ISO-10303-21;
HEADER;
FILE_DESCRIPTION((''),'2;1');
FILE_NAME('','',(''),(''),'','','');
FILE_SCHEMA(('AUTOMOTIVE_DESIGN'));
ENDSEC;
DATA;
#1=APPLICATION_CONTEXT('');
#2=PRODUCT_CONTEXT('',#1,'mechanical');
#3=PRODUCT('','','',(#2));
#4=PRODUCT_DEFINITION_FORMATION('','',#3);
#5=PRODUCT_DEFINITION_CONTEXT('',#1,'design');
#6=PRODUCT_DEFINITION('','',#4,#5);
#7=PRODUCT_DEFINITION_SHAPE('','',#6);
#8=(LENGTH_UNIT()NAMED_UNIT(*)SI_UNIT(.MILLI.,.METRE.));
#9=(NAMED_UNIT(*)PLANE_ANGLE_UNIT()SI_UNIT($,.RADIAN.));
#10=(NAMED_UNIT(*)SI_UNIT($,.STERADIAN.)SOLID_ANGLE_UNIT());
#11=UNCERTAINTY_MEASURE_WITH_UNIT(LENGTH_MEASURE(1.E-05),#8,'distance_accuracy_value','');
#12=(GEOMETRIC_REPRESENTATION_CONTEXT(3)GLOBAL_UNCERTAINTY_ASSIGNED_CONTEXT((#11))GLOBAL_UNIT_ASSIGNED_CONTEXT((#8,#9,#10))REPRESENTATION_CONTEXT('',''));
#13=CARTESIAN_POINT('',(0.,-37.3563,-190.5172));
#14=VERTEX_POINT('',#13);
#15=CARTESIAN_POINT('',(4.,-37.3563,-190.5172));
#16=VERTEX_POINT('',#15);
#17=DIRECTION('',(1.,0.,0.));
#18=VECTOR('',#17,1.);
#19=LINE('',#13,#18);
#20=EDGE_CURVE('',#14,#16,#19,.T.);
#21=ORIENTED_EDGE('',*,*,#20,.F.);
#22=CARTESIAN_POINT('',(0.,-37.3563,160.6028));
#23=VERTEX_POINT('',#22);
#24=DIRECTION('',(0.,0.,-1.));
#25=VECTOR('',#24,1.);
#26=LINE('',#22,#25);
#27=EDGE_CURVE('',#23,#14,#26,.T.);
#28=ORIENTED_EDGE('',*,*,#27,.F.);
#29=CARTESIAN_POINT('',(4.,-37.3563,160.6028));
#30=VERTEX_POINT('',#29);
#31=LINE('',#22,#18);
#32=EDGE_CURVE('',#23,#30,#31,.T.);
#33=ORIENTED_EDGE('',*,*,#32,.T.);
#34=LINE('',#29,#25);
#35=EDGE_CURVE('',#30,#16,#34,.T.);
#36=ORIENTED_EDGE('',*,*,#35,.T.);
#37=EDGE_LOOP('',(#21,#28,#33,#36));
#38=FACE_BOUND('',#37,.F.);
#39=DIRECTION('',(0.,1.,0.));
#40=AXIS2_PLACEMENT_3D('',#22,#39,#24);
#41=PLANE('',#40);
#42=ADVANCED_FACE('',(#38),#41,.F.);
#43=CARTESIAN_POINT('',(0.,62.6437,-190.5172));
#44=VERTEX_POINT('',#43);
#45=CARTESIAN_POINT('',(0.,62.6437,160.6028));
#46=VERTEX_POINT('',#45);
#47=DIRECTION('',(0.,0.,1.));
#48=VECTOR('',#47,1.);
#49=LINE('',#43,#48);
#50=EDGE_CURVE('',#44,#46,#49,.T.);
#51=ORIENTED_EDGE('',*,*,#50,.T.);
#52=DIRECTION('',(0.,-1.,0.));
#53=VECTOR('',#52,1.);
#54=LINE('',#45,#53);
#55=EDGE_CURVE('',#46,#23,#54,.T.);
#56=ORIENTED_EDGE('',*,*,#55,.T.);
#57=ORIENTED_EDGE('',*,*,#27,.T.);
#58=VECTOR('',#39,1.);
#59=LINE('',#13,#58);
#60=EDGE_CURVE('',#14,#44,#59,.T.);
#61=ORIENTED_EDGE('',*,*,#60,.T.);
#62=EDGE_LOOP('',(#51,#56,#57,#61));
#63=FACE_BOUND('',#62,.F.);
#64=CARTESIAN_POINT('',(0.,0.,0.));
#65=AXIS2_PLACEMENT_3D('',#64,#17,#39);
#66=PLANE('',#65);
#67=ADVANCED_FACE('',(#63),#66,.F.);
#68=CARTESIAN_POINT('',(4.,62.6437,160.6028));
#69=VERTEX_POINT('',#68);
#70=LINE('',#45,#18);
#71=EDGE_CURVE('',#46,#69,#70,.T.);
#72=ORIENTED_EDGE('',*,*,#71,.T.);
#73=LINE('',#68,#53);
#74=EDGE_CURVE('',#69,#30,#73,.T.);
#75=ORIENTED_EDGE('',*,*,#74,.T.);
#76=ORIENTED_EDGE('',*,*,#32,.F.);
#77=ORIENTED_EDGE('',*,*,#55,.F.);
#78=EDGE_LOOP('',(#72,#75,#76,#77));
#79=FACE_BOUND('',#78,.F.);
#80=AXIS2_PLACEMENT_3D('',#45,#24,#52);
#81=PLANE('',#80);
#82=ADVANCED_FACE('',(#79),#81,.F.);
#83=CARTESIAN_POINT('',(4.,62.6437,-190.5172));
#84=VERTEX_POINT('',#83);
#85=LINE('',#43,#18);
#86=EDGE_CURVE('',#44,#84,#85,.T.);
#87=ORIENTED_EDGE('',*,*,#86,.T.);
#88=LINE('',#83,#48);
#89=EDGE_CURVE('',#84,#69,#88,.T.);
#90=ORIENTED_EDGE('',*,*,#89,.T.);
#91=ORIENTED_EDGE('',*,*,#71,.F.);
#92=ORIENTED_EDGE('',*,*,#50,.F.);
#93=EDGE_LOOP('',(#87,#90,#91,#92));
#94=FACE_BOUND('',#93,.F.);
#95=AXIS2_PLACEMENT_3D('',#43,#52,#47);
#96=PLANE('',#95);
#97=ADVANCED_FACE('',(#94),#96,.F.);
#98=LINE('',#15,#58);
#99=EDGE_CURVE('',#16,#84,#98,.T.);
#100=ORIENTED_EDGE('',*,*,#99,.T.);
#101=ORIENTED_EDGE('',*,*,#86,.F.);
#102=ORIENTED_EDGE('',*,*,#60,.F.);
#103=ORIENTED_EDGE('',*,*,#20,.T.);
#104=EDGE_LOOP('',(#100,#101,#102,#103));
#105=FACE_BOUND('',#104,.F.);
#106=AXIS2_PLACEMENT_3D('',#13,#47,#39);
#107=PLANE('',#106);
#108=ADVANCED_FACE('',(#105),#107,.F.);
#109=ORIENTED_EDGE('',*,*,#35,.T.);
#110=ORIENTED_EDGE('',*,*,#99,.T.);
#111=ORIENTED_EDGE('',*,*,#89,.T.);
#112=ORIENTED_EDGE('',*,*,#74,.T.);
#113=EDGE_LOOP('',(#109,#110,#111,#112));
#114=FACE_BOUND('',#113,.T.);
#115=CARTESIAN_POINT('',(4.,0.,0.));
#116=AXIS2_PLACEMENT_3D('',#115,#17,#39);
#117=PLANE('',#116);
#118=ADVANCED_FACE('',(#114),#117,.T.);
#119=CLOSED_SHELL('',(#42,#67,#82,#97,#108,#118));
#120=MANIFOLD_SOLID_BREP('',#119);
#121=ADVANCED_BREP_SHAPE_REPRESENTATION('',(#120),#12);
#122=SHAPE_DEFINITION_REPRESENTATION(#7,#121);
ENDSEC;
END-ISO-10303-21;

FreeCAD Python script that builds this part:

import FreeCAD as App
import Part
import Sketcher

V = App.Vector
Q = App.Units.Quantity

doc = App.newDocument("Part")
body = doc.addObject("PartDesign::Body", "Body")

sketch1 = doc.addObject("Sketcher::SketchObject", "Sketch")
body.addObject(sketch1)
sketch1.AttachmentSupport = (doc.YZ_Plane, [""])
sketch1.MapMode = "FlatFace"
sketch1.addGeometry([
    Part.LineSegment(V(62.6437, -190.5172, 0), V(62.6437, 160.6028, 0)),
    Part.LineSegment(V(62.6437, 160.6028, 0), V(-37.3563, 160.6028, 0)),
    Part.LineSegment(V(-37.3563, 160.6028, 0), V(-37.3563, -190.5172, 0)),
    Part.LineSegment(V(-37.3563, -190.5172, 0), V(62.6437, -190.5172, 0)),
], False)
sketch1.addConstraint([
    Sketcher.Constraint("Coincident", 0, 2, 1, 1),
    Sketcher.Constraint("Coincident", 1, 2, 2, 1),
    Sketcher.Constraint("Coincident", 2, 2, 3, 1),
    Sketcher.Constraint("Coincident", 3, 2, 0, 1),
    Sketcher.Constraint("Vertical", 0),
    Sketcher.Constraint("Horizontal", 1),
    Sketcher.Constraint("Vertical", 2),
    Sketcher.Constraint("Horizontal", 3),
    Sketcher.Constraint("DistanceX", 1, 2, 1, 1, Q("100 mm")),
    Sketcher.Constraint("DistanceY", 0, 1, 0, 2, Q("351.12 mm")),
    Sketcher.Constraint("DistanceX", -1, 1, 0, 2, Q("62.6437 mm")),
    Sketcher.Constraint("DistanceY", -1, 1, 0, 2, Q("160.6028 mm")),
])
pad1 = doc.addObject("PartDesign::Pad", "Pad")
body.addObject(pad1)
pad1.Profile = sketch1
pad1.Length = 4

doc.recompute()
